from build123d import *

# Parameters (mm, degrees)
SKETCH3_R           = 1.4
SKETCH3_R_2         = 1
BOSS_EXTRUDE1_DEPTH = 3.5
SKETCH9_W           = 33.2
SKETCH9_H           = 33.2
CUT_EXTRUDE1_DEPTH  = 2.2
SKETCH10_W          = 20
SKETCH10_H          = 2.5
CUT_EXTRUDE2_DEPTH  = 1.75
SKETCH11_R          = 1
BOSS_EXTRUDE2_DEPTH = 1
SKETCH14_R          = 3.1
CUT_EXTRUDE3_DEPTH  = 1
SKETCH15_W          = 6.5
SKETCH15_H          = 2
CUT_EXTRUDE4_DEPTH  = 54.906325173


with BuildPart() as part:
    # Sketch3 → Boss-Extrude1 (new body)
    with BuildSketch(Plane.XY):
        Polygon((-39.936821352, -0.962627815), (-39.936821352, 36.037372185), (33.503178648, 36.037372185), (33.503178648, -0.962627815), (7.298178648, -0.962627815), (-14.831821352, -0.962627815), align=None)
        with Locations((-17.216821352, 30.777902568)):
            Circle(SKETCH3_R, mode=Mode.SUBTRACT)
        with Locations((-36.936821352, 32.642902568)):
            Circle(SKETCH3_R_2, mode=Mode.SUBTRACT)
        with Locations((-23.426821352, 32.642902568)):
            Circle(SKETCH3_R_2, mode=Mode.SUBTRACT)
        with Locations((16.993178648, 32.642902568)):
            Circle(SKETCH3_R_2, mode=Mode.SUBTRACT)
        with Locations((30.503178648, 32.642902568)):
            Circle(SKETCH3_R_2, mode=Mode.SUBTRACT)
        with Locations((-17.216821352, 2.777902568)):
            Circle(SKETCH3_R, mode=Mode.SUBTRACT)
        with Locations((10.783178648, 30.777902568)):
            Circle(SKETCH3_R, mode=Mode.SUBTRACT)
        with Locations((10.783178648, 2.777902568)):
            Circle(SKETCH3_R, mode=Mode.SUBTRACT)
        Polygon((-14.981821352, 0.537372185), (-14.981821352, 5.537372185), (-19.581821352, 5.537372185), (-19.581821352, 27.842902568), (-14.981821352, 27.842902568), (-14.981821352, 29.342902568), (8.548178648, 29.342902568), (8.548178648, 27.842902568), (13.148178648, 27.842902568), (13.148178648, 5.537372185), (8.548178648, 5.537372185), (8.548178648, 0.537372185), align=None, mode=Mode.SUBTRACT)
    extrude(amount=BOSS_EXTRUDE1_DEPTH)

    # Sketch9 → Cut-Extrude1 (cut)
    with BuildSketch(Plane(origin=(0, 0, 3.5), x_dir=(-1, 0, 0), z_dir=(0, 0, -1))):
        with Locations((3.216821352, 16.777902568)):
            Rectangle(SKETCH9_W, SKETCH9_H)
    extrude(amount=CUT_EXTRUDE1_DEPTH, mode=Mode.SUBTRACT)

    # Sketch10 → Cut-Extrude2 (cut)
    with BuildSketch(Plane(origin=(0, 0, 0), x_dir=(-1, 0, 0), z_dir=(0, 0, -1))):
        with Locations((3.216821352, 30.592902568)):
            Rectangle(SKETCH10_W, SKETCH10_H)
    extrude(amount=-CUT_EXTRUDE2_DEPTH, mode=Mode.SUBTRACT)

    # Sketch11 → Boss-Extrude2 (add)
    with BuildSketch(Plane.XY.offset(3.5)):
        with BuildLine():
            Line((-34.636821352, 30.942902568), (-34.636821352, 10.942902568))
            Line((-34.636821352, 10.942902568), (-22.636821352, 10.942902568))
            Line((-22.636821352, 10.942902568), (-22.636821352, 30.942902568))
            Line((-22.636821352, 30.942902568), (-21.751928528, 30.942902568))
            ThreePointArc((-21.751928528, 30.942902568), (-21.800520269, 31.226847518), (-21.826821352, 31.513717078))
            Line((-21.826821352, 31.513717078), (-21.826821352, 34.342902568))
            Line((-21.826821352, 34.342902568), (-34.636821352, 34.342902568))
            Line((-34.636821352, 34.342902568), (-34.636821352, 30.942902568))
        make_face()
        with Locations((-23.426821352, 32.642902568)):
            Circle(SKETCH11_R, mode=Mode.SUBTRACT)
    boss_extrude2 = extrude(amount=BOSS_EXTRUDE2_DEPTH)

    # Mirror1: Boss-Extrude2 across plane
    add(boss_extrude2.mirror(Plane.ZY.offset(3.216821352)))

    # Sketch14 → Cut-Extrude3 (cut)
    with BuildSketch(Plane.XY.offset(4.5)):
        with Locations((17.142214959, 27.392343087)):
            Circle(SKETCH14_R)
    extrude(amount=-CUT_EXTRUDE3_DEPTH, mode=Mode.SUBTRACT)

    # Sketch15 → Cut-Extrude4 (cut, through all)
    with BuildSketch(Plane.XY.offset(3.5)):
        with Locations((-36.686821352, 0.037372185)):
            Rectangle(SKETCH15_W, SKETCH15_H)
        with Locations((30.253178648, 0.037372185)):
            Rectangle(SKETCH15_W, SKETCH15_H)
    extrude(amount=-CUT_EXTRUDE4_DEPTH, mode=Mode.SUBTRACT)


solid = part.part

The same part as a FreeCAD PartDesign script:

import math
import FreeCAD as App
import Part
import Sketcher
from FreeCAD import Vector
Q = App.Units.Quantity


def add_polygon(sketch, points):
    """Adds a closed chain of lines whose ends are joined by coincident constraints."""
    first, n = sketch.GeometryCount, len(points)
    for a, b in zip(points, points[1:] + points[:1]):
        sketch.addGeometry(Part.LineSegment(App.Vector(*a, 0), App.Vector(*b, 0)), False)
    for i in range(n):
        sketch.addConstraint(Sketcher.Constraint("Coincident", first + i, 2, first + (i + 1) % n, 1))

doc = App.newDocument("Part")
body = doc.addObject("PartDesign::Body", "Body")

sketch1 = body.newObject("Sketcher::SketchObject", "Sketch")
sketch1.AttachmentSupport = (doc.getObject("XY_Plane"), [""])
sketch1.MapMode = "FlatFace"
add_polygon(sketch1, [(-39.936821, 36.037372), (-39.936821, -0.962628), (33.503179, -0.962628), (33.503179, 36.037372)])
sketch1.addGeometry(Part.Circle(Vector(10.783179, 2.777903, 0), Vector(0, 0, 1), 1.4), False)
sketch1.addGeometry(Part.Circle(Vector(-17.216821, 2.777903, 0), Vector(0, 0, 1), 1.4), False)
add_polygon(sketch1, [(-14.981821, 0.537372), (-14.981821, 5.537372), (-19.581821, 5.537372), (-19.581821, 27.842903), (-14.981821, 27.842903), (-14.981821, 29.342903), (8.548179, 29.342903), (8.548179, 27.842903), (13.148179, 27.842903), (13.148179, 5.537372), (8.548179, 5.537372), (8.548179, 0.537372)])
sketch1.addGeometry(Part.Circle(Vector(30.503179, 32.642903, 0), Vector(0, 0, 1), 1), False)
sketch1.addGeometry(Part.Circle(Vector(16.993179, 32.642903, 0), Vector(0, 0, 1), 1), False)
sketch1.addGeometry(Part.Circle(Vector(10.783179, 30.777903, 0), Vector(0, 0, 1), 1.4), False)
sketch1.addGeometry(Part.Circle(Vector(-17.216821, 30.777903, 0), Vector(0, 0, 1), 1.4), False)
sketch1.addGeometry(Part.Circle(Vector(-23.426821, 32.642903, 0), Vector(0, 0, 1), 1), False)
sketch1.addGeometry(Part.Circle(Vector(-36.936821, 32.642903, 0), Vector(0, 0, 1), 1), False)
sketch1.addConstraint([
    Sketcher.Constraint("Vertical", 0),
    Sketcher.Constraint("Horizontal", 1),
    Sketcher.Constraint("Vertical", 2),
    Sketcher.Constraint("Horizontal", 3),
    Sketcher.Constraint("Vertical", 6),
    Sketcher.Constraint("Horizontal", 7),
    Sketcher.Constraint("Vertical", 8),
    Sketcher.Constraint("Horizontal", 9),
    Sketcher.Constraint("Vertical", 10),
    Sketcher.Constraint("Horizontal", 11),
    Sketcher.Constraint("Vertical", 12),
    Sketcher.Constraint("Horizontal", 13),
    Sketcher.Constraint("Vertical", 14),
    Sketcher.Constraint("Horizontal", 15),
    Sketcher.Constraint("Vertical", 16),
    Sketcher.Constraint("Horizontal", 17),
    Sketcher.Constraint("Equal", 4, 5),
    Sketcher.Constraint("Equal", 18, 19),
    Sketcher.Constraint("Equal", 5, 20),
    Sketcher.Constraint("Equal", 20, 21),
    Sketcher.Constraint("Equal", 19, 22),
    Sketcher.Constraint("Equal", 22, 23),
    Sketcher.Constraint("Horizontal", 4, 3, 5, 3),
    Sketcher.Constraint("Horizontal", 18, 3, 19, 3),
    Sketcher.Constraint("Horizontal", 20, 3, 21, 3),
    Sketcher.Constraint("Horizontal", 19, 3, 22, 3),
    Sketcher.Constraint("Horizontal", 22, 3, 23, 3),
    Sketcher.Constraint("Horizontal", 9, 2, 12, 2),
    Sketcher.Constraint("Horizontal", 7, 2, 14, 2),
    Sketcher.Constraint("Vertical", 4, 3, 20, 3),
    Sketcher.Constraint("Vertical", 5, 3, 21, 3),
    Sketcher.Constraint("Vertical", 6, 2, 9, 2),
    Sketcher.Constraint("Vertical", 12, 2, 15, 2),
    Sketcher.Constraint("Equal", 9, 13),
    Sketcher.Constraint("Diameter", 18, Q("2 mm")),
    Sketcher.Constraint("Diameter", 4, Q("2.8 mm")),
    Sketcher.Constraint("DistanceY", 0, 2, 0, 1, Q("37 mm")),
    Sketcher.Constraint("DistanceY", 6, 1, 6, 2, Q("5 mm")),
    Sketcher.Constraint("DistanceX", 7, 2, 7, 1, Q("4.6 mm")),
    Sketcher.Constraint("DistanceY", 10, 1, 10, 2, Q("1.5 mm")),
    Sketcher.Constraint("DistanceX", 5, 3, 4, 3, Q("28 mm")),
    Sketcher.Constraint("DistanceY", 4, 3, 20, 3, Q("28 mm")),
    Sketcher.Constraint("DistanceX", 0, 2, 23, 3, Q("3 mm")),
    Sketcher.Constraint("DistanceX", 18, 3, 1, 2, Q("3 mm")),
    Sketcher.Constraint("DistanceX", 1, 1, 1, 2, Q("73.44 mm")),
    Sketcher.Constraint("DistanceX", 11, 1, 11, 2, Q("23.53 mm")),
    Sketcher.Constraint("DistanceY", 0, 2, 6, 2, Q("6.5 mm")),
    Sketcher.Constraint("DistanceY", 8, 2, 22, 3, Q("4.8 mm")),
    Sketcher.Constraint("DistanceX", 4, 3, 18, 3, Q("19.72 mm")),
    Sketcher.Constraint("DistanceX", 19, 3, 18, 3, Q("13.51 mm")),
    Sketcher.Constraint("DistanceX", 22, 3, 21, 3, Q("6.21 mm")),
    Sketcher.Constraint("DistanceY", 4, 3, 18, 3, Q("29.865 mm")),
    Sketcher.Constraint("DistanceX", 5, 3, 6, 2, Q("2.235 mm")),
    Sketcher.Constraint("DistanceY", 8, 1, 8, 2, Q("22.30553 mm")),
    Sketcher.Constraint("DistanceX", -1, 1, 4, 3, Q("10.783179 mm")),
    Sketcher.Constraint("DistanceY", -1, 1, 4, 3, Q("2.777903 mm")),
])
pad1 = body.newObject("PartDesign::Pad", "Pad")
pad1.Profile = sketch1
pad1.Length = 3.5

sketch2 = body.newObject("Sketcher::SketchObject", "Sketch001")
sketch2.AttachmentSupport = (doc.getObject("XY_Plane"), [""])
sketch2.MapMode = "FlatFace"
sketch2.AttachmentOffset = App.Placement(Vector(0, 0, 3.5), App.Rotation())
add_polygon(sketch2, [(13.383179, 33.377903), (13.383179, 0.177903), (-19.816821, 0.177903), (-19.816821, 33.377903)])
sketch2.addConstraint([
    Sketcher.Constraint("Vertical", 0),
    Sketcher.Constraint("Horizontal", 1),
    Sketcher.Constraint("Vertical", 2),
    Sketcher.Constraint("Horizontal", 3),
    Sketcher.Constraint("Equal", 3, 0),
    Sketcher.Constraint("DistanceX", 1, 2, 1, 1, Q("33.2 mm")),
    Sketcher.Constraint("DistanceX", -1, 1, 0, 2, Q("13.383179 mm")),
    Sketcher.Constraint("DistanceY", -1, 1, 0, 2, Q("0.177903 mm")),
])
pocket1 = body.newObject("PartDesign::Pocket", "Pocket")
pocket1.Profile = sketch2
pocket1.Length = 2.2

sketch3 = body.newObject("Sketcher::SketchObject", "Sketch002")
sketch3.AttachmentSupport = (doc.getObject("XY_Plane"), [""])
sketch3.MapMode = "FlatFace"
add_polygon(sketch3, [(6.783179, 31.842903), (6.783179, 29.342903), (-13.216821, 29.342903), (-13.216821, 31.842903)])
sketch3.addConstraint([
    Sketcher.Constraint("Vertical", 0),
    Sketcher.Constraint("Horizontal", 1),
    Sketcher.Constraint("Vertical", 2),
    Sketcher.Constraint("Horizontal", 3),
    Sketcher.Constraint("DistanceX", 1, 2, 1, 1, Q("20 mm")),
    Sketcher.Constraint("DistanceY", 0, 2, 0, 1, Q("2.5 mm")),
    Sketcher.Constraint("DistanceX", -1, 1, 0, 2, Q("6.783179 mm")),
    Sketcher.Constraint("DistanceY", -1, 1, 0, 2, Q("29.342903 mm")),
])
pocket2 = body.newObject("PartDesign::Pocket", "Pocket001")
pocket2.Profile = sketch3
pocket2.Length = 1.75
pocket2.Reversed = True

sketch4 = body.newObject("Sketcher::SketchObject", "Sketch003")
sketch4.AttachmentSupport = (doc.getObject("XY_Plane"), [""])
sketch4.MapMode = "FlatFace"
sketch4.AttachmentOffset = App.Placement(Vector(0, 0, 3.5), App.Rotation())
sketch4.addGeometry([
    Part.LineSegment(Vector(-34.636821, 10.942903, 0), Vector(-22.636821, 10.942903, 0)),
    Part.LineSegment(Vector(-22.636821, 10.942903, 0), Vector(-22.636821, 30.942903, 0)),
    Part.LineSegment(Vector(-22.636821, 30.942903, 0), Vector(-21.751929, 30.942903, 0)),
    Part.ArcOfCircle(Part.Circle(Vector(-18.140623, 31.707039, 0), Vector(0, 0, 1), 3.691264), math.radians(-176.997891), math.radians(-168.052694)),
    Part.LineSegment(Vector(-21.826821, 31.513717, 0), Vector(-21.826821, 34.342903, 0)),
    Part.LineSegment(Vector(-21.826821, 34.342903, 0), Vector(-34.636821, 34.342903, 0)),
    Part.LineSegment(Vector(-34.636821, 34.342903, 0), Vector(-34.636821, 10.942903, 0)),
    Part.Circle(Vector(-23.426821, 32.642903, 0), Vector(0, 0, 1), 1),
], False)
sketch4.addConstraint([
    Sketcher.Constraint("Coincident", 0, 2, 1, 1),
    Sketcher.Constraint("Coincident", 1, 2, 2, 1),
    Sketcher.Constraint("Coincident", 2, 2, 3, 2),
    Sketcher.Constraint("Coincident", 3, 1, 4, 1),
    Sketcher.Constraint("Coincident", 4, 2, 5, 1),
    Sketcher.Constraint("Coincident", 5, 2, 6, 1),
    Sketcher.Constraint("Coincident", 6, 2, 0, 1),
    Sketcher.Constraint("Horizontal", 0),
    Sketcher.Constraint("Vertical", 1),
    Sketcher.Constraint("Horizontal", 2),
    Sketcher.Constraint("Vertical", 4),
    Sketcher.Constraint("Horizontal", 5),
    Sketcher.Constraint("Vertical", 6),
    Sketcher.Constraint("Diameter", 7, Q("2 mm")),
    Sketcher.Constraint("DistanceX", 0, 1, 0, 2, Q("12 mm")),
    Sketcher.Constraint("DistanceY", 1, 1, 1, 2, Q("20 mm")),
    Sketcher.Constraint("DistanceY", 6, 2, 6, 1, Q("23.4 mm")),
    Sketcher.Constraint("DistanceX", 5, 2, 5, 1, Q("12.81 mm")),
    Sketcher.Constraint("DistanceY", 0, 2, 7, 3, Q("21.7 mm")),
    Sketcher.Constraint("DistanceX", 7, 3, 3, 1, Q("1.6 mm")),
    Sketcher.Constraint("Radius", 3, Q("3.691264 mm")),
    Sketcher.Constraint("DistanceX", 7, 3, 3, 3, Q("5.286198 mm")),
    Sketcher.Constraint("DistanceX", 2, 1, 2, 2, Q("0.884893 mm")),
    Sketcher.Constraint("DistanceY", -1, 1, 3, 3, Q("31.707039 mm")),
    Sketcher.Constraint("DistanceX", 7, 3, -1, 1, Q("23.426821 mm")),
])
pad2 = body.newObject("PartDesign::Pad", "Pad001")
pad2.Profile = sketch4
pad2.Length = 1
doc.recompute()

datumplane = body.newObject("PartDesign::Plane", "DatumPlane")
datumplane.AttachmentSupport = (doc.getObject("YZ_Plane"), [""])
datumplane.MapMode = "FlatFace"
datumplane.AttachmentOffset = App.Placement(Vector(0, 0, -3.216821), App.Rotation())
mirrored = body.newObject("PartDesign::Mirrored", "Mirrored")
mirrored.Originals = [pad2]
mirrored.MirrorPlane = (datumplane, [""])
body.Tip = mirrored

sketch5 = body.newObject("Sketcher::SketchObject", "Sketch004")
sketch5.AttachmentSupport = (doc.getObject("XY_Plane"), [""])
sketch5.MapMode = "FlatFace"
sketch5.AttachmentOffset = App.Placement(Vector(0, 0, 4.5), App.Rotation())
sketch5.addGeometry(Part.Circle(Vector(17.142215, 27.392343, 0), Vector(0, 0, 1), 3.1), False)
sketch5.addConstraint([
    Sketcher.Constraint("Diameter", 0, Q("6.2 mm")),
    Sketcher.Constraint("DistanceX", -1, 1, 0, 3, Q("17.142215 mm")),
    Sketcher.Constraint("DistanceY", -1, 1, 0, 3, Q("27.392343 mm")),
])
pocket3 = body.newObject("PartDesign::Pocket", "Pocket002")
pocket3.Profile = sketch5
pocket3.Length = 1

sketch6 = body.newObject("Sketcher::SketchObject", "Sketch005")
sketch6.AttachmentSupport = (doc.getObject("XY_Plane"), [""])
sketch6.MapMode = "FlatFace"
sketch6.AttachmentOffset = App.Placement(Vector(0, 0, 3.5), App.Rotation())
add_polygon(sketch6, [(-39.936821, 1.037372), (-39.936821, -0.962628), (-33.436821, -0.962628), (-33.436821, 1.037372)])
add_polygon(sketch6, [(27.003179, 1.037372), (27.003179, -0.962628), (33.503179, -0.962628), (33.503179, 1.037372)])
sketch6.addConstraint([
    Sketcher.Constraint("Vertical", 0),
    Sketcher.Constraint("Horizontal", 1),
    Sketcher.Constraint("Vertical", 2),
    Sketcher.Constraint("Horizontal", 3),
    Sketcher.Constraint("Vertical", 4),
    Sketcher.Constraint("Horizontal", 5),
    Sketcher.Constraint("Vertical", 6),
    Sketcher.Constraint("Horizontal", 7),
    Sketcher.Constraint("Horizontal", 1, 2, 4, 2),
    Sketcher.Constraint("Horizontal", 3, 2, 6, 2),
    Sketcher.Constraint("Equal", 3, 5),
    Sketcher.Constraint("DistanceY", 0, 2, 0, 1, Q("2 mm")),
    Sketcher.Constraint("DistanceX", 1, 1, 1, 2, Q("6.5 mm")),
    Sketcher.Constraint("DistanceX", 1, 2, 4, 2, Q("60.44 mm")),
    Sketcher.Constraint("DistanceX", 0, 2, -1, 1, Q("39.936821 mm")),
    Sketcher.Constraint("DistanceY", 0, 2, -1, 1, Q("0.962628 mm")),
])
pocket4 = body.newObject("PartDesign::Pocket", "Pocket003")
pocket4.Profile = sketch6
pocket4.Type = "ThroughAll"

doc.recompute()
